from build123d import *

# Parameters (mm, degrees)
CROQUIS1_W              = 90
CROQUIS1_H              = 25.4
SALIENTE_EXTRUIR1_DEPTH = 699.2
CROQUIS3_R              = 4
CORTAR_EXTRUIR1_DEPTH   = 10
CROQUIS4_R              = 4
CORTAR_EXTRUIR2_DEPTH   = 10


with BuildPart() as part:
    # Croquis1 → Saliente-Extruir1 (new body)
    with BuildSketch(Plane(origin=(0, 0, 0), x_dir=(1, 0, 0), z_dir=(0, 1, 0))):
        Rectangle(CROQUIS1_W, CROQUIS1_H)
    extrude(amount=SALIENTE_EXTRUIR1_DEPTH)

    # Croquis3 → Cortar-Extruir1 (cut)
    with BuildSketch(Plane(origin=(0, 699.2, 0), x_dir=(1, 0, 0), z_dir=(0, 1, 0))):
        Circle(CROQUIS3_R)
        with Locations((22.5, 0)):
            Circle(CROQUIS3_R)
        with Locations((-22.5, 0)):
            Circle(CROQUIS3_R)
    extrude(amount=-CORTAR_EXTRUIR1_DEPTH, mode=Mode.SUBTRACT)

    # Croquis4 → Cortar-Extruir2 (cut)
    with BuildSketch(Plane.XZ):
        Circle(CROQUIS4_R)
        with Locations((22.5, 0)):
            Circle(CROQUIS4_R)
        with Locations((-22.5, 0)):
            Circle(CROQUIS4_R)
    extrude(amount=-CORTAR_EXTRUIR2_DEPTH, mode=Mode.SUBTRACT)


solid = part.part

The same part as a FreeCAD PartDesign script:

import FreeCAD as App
import Part
import Sketcher
from FreeCAD import Vector
Q = App.Units.Quantity


def add_polygon(sketch, points):
    """Adds a closed chain of lines whose ends are joined by coincident constraints."""
    first, n = sketch.GeometryCount, len(points)
    for a, b in zip(points, points[1:] + points[:1]):
        sketch.addGeometry(Part.LineSegment(App.Vector(*a, 0), App.Vector(*b, 0)), False)
    for i in range(n):
        sketch.addConstraint(Sketcher.Constraint("Coincident", first + i, 2, first + (i + 1) % n, 1))

doc = App.newDocument("Part")
params = doc.addObject("Spreadsheet::Sheet", "Params")
for row, (alias, value) in enumerate([
    ("sketch1_width", "90 mm"),
    ("sketch1_height", "25.4 mm"),
    ("pad1_length", "699.2 mm"),
    ("sketch2_diameter", "8 mm"),
    ("pocket1_length", "10 mm"),
    ("sketch3_diameter", "8 mm"),
    ("pocket2_length", "10 mm"),
], start=1):
    params.set(f"A{row}", alias)
    params.set(f"B{row}", "=" + value)
    params.setAlias(f"B{row}", alias)

body = doc.addObject("PartDesign::Body", "Body")

# Sketch on XZ plane
sketch1 = doc.addObject("Sketcher::SketchObject", "Sketch")
body.addObject(sketch1)
sketch1.AttachmentSupport = (doc.XZ_Plane, [""])
sketch1.MapMode = "FlatFace"
add_polygon(sketch1, [(-45, -12.7), (-45, 12.7), (45, 12.7), (45, -12.7)])  # lines 0-3
sketch1.addConstraint(Sketcher.Constraint("Vertical", 0))
sketch1.addConstraint(Sketcher.Constraint("Horizontal", 1))
sketch1.addConstraint(Sketcher.Constraint("Vertical", 2))
sketch1.addConstraint(Sketcher.Constraint("Horizontal", 3))
sketch1.addConstraint(Sketcher.Constraint("Symmetric", 0, 2, 2, 2, -1, 1))
sketch1.addConstraint(Sketcher.Constraint("DistanceX", 1, 1, 1, 2, Q("90 mm")))
sketch1.addConstraint(Sketcher.Constraint("DistanceY", 0, 1, 0, 2, Q("25.4 mm")))
sketch1.setExpression("Constraints[9]", "Params.sketch1_width")
sketch1.setExpression("Constraints[10]", "Params.sketch1_height")
pad1 = doc.addObject("PartDesign::Pad", "Pad")
body.addObject(pad1)
pad1.Profile = sketch1
pad1.setExpression("Length", "Params.pad1_length")
pad1.Reversed = True

# Sketch on XZ plane
sketch2 = doc.addObject("Sketcher::SketchObject", "Sketch001")
body.addObject(sketch2)
sketch2.AttachmentSupport = (doc.XZ_Plane, [""])
sketch2.MapMode = "FlatFace"
sketch2.AttachmentOffset = App.Placement(Vector(0, 0, -699.2), App.Rotation())
sketch2.addGeometry(Part.Circle(Vector(0, 0, 0), Vector(0, 0, 1), 4), False)
sketch2.addGeometry(Part.Circle(Vector(22.5, 0, 0), Vector(0, 0, 1), 4), False)
sketch2.addGeometry(Part.Circle(Vector(-22.5, 0, 0), Vector(0, 0, 1), 4), False)
sketch2.addConstraint(Sketcher.Constraint("Coincident", 0, 3, -1, 1))
sketch2.addConstraint(Sketcher.Constraint("Equal", 0, 1))
sketch2.addConstraint(Sketcher.Constraint("Equal", 1, 2))
sketch2.addConstraint(Sketcher.Constraint("Symmetric", 1, 3, 2, 3, -1, 1))
sketch2.addConstraint(Sketcher.Constraint("PointOnObject", 1, 3, -1))
sketch2.addConstraint(Sketcher.Constraint("Diameter", 0, Q("8 mm")))
sketch2.addConstraint(Sketcher.Constraint("DistanceX", 2, 3, 1, 3, Q("45 mm")))
sketch2.setExpression("Constraints[5]", "Params.sketch2_diameter")
pocket1 = doc.addObject("PartDesign::Pocket", "Pocket")
body.addObject(pocket1)
pocket1.Profile = sketch2
pocket1.setExpression("Length", "Params.pocket1_length")
pocket1.Reversed = True

# Sketch on XZ plane
sketch3 = doc.addObject("Sketcher::SketchObject", "Sketch002")
body.addObject(sketch3)
sketch3.AttachmentSupport = (doc.XZ_Plane, [""])
sketch3.MapMode = "FlatFace"
sketch3.addGeometry(Part.Circle(Vector(0, 0, 0), Vector(0, 0, 1), 4), False)
sketch3.addGeometry(Part.Circle(Vector(22.5, 0, 0), Vector(0, 0, 1), 4), False)
sketch3.addGeometry(Part.Circle(Vector(-22.5, 0, 0), Vector(0, 0, 1), 4), False)
sketch3.addConstraint(Sketcher.Constraint("Coincident", 0, 3, -1, 1))
sketch3.addConstraint(Sketcher.Constraint("Equal", 0, 1))
sketch3.addConstraint(Sketcher.Constraint("Equal", 1, 2))
sketch3.addConstraint(Sketcher.Constraint("Symmetric", 1, 3, 2, 3, -1, 1))
sketch3.addConstraint(Sketcher.Constraint("PointOnObject", 1, 3, -1))
sketch3.addConstraint(Sketcher.Constraint("Diameter", 0, Q("8 mm")))
sketch3.addConstraint(Sketcher.Constraint("DistanceX", 2, 3, 1, 3, Q("45 mm")))
sketch3.setExpression("Constraints[5]", "Params.sketch3_diameter")
pocket2 = doc.addObject("PartDesign::Pocket", "Pocket001")
body.addObject(pocket2)
pocket2.Profile = sketch3
pocket2.setExpression("Length", "Params.pocket2_length")

doc.recompute()
